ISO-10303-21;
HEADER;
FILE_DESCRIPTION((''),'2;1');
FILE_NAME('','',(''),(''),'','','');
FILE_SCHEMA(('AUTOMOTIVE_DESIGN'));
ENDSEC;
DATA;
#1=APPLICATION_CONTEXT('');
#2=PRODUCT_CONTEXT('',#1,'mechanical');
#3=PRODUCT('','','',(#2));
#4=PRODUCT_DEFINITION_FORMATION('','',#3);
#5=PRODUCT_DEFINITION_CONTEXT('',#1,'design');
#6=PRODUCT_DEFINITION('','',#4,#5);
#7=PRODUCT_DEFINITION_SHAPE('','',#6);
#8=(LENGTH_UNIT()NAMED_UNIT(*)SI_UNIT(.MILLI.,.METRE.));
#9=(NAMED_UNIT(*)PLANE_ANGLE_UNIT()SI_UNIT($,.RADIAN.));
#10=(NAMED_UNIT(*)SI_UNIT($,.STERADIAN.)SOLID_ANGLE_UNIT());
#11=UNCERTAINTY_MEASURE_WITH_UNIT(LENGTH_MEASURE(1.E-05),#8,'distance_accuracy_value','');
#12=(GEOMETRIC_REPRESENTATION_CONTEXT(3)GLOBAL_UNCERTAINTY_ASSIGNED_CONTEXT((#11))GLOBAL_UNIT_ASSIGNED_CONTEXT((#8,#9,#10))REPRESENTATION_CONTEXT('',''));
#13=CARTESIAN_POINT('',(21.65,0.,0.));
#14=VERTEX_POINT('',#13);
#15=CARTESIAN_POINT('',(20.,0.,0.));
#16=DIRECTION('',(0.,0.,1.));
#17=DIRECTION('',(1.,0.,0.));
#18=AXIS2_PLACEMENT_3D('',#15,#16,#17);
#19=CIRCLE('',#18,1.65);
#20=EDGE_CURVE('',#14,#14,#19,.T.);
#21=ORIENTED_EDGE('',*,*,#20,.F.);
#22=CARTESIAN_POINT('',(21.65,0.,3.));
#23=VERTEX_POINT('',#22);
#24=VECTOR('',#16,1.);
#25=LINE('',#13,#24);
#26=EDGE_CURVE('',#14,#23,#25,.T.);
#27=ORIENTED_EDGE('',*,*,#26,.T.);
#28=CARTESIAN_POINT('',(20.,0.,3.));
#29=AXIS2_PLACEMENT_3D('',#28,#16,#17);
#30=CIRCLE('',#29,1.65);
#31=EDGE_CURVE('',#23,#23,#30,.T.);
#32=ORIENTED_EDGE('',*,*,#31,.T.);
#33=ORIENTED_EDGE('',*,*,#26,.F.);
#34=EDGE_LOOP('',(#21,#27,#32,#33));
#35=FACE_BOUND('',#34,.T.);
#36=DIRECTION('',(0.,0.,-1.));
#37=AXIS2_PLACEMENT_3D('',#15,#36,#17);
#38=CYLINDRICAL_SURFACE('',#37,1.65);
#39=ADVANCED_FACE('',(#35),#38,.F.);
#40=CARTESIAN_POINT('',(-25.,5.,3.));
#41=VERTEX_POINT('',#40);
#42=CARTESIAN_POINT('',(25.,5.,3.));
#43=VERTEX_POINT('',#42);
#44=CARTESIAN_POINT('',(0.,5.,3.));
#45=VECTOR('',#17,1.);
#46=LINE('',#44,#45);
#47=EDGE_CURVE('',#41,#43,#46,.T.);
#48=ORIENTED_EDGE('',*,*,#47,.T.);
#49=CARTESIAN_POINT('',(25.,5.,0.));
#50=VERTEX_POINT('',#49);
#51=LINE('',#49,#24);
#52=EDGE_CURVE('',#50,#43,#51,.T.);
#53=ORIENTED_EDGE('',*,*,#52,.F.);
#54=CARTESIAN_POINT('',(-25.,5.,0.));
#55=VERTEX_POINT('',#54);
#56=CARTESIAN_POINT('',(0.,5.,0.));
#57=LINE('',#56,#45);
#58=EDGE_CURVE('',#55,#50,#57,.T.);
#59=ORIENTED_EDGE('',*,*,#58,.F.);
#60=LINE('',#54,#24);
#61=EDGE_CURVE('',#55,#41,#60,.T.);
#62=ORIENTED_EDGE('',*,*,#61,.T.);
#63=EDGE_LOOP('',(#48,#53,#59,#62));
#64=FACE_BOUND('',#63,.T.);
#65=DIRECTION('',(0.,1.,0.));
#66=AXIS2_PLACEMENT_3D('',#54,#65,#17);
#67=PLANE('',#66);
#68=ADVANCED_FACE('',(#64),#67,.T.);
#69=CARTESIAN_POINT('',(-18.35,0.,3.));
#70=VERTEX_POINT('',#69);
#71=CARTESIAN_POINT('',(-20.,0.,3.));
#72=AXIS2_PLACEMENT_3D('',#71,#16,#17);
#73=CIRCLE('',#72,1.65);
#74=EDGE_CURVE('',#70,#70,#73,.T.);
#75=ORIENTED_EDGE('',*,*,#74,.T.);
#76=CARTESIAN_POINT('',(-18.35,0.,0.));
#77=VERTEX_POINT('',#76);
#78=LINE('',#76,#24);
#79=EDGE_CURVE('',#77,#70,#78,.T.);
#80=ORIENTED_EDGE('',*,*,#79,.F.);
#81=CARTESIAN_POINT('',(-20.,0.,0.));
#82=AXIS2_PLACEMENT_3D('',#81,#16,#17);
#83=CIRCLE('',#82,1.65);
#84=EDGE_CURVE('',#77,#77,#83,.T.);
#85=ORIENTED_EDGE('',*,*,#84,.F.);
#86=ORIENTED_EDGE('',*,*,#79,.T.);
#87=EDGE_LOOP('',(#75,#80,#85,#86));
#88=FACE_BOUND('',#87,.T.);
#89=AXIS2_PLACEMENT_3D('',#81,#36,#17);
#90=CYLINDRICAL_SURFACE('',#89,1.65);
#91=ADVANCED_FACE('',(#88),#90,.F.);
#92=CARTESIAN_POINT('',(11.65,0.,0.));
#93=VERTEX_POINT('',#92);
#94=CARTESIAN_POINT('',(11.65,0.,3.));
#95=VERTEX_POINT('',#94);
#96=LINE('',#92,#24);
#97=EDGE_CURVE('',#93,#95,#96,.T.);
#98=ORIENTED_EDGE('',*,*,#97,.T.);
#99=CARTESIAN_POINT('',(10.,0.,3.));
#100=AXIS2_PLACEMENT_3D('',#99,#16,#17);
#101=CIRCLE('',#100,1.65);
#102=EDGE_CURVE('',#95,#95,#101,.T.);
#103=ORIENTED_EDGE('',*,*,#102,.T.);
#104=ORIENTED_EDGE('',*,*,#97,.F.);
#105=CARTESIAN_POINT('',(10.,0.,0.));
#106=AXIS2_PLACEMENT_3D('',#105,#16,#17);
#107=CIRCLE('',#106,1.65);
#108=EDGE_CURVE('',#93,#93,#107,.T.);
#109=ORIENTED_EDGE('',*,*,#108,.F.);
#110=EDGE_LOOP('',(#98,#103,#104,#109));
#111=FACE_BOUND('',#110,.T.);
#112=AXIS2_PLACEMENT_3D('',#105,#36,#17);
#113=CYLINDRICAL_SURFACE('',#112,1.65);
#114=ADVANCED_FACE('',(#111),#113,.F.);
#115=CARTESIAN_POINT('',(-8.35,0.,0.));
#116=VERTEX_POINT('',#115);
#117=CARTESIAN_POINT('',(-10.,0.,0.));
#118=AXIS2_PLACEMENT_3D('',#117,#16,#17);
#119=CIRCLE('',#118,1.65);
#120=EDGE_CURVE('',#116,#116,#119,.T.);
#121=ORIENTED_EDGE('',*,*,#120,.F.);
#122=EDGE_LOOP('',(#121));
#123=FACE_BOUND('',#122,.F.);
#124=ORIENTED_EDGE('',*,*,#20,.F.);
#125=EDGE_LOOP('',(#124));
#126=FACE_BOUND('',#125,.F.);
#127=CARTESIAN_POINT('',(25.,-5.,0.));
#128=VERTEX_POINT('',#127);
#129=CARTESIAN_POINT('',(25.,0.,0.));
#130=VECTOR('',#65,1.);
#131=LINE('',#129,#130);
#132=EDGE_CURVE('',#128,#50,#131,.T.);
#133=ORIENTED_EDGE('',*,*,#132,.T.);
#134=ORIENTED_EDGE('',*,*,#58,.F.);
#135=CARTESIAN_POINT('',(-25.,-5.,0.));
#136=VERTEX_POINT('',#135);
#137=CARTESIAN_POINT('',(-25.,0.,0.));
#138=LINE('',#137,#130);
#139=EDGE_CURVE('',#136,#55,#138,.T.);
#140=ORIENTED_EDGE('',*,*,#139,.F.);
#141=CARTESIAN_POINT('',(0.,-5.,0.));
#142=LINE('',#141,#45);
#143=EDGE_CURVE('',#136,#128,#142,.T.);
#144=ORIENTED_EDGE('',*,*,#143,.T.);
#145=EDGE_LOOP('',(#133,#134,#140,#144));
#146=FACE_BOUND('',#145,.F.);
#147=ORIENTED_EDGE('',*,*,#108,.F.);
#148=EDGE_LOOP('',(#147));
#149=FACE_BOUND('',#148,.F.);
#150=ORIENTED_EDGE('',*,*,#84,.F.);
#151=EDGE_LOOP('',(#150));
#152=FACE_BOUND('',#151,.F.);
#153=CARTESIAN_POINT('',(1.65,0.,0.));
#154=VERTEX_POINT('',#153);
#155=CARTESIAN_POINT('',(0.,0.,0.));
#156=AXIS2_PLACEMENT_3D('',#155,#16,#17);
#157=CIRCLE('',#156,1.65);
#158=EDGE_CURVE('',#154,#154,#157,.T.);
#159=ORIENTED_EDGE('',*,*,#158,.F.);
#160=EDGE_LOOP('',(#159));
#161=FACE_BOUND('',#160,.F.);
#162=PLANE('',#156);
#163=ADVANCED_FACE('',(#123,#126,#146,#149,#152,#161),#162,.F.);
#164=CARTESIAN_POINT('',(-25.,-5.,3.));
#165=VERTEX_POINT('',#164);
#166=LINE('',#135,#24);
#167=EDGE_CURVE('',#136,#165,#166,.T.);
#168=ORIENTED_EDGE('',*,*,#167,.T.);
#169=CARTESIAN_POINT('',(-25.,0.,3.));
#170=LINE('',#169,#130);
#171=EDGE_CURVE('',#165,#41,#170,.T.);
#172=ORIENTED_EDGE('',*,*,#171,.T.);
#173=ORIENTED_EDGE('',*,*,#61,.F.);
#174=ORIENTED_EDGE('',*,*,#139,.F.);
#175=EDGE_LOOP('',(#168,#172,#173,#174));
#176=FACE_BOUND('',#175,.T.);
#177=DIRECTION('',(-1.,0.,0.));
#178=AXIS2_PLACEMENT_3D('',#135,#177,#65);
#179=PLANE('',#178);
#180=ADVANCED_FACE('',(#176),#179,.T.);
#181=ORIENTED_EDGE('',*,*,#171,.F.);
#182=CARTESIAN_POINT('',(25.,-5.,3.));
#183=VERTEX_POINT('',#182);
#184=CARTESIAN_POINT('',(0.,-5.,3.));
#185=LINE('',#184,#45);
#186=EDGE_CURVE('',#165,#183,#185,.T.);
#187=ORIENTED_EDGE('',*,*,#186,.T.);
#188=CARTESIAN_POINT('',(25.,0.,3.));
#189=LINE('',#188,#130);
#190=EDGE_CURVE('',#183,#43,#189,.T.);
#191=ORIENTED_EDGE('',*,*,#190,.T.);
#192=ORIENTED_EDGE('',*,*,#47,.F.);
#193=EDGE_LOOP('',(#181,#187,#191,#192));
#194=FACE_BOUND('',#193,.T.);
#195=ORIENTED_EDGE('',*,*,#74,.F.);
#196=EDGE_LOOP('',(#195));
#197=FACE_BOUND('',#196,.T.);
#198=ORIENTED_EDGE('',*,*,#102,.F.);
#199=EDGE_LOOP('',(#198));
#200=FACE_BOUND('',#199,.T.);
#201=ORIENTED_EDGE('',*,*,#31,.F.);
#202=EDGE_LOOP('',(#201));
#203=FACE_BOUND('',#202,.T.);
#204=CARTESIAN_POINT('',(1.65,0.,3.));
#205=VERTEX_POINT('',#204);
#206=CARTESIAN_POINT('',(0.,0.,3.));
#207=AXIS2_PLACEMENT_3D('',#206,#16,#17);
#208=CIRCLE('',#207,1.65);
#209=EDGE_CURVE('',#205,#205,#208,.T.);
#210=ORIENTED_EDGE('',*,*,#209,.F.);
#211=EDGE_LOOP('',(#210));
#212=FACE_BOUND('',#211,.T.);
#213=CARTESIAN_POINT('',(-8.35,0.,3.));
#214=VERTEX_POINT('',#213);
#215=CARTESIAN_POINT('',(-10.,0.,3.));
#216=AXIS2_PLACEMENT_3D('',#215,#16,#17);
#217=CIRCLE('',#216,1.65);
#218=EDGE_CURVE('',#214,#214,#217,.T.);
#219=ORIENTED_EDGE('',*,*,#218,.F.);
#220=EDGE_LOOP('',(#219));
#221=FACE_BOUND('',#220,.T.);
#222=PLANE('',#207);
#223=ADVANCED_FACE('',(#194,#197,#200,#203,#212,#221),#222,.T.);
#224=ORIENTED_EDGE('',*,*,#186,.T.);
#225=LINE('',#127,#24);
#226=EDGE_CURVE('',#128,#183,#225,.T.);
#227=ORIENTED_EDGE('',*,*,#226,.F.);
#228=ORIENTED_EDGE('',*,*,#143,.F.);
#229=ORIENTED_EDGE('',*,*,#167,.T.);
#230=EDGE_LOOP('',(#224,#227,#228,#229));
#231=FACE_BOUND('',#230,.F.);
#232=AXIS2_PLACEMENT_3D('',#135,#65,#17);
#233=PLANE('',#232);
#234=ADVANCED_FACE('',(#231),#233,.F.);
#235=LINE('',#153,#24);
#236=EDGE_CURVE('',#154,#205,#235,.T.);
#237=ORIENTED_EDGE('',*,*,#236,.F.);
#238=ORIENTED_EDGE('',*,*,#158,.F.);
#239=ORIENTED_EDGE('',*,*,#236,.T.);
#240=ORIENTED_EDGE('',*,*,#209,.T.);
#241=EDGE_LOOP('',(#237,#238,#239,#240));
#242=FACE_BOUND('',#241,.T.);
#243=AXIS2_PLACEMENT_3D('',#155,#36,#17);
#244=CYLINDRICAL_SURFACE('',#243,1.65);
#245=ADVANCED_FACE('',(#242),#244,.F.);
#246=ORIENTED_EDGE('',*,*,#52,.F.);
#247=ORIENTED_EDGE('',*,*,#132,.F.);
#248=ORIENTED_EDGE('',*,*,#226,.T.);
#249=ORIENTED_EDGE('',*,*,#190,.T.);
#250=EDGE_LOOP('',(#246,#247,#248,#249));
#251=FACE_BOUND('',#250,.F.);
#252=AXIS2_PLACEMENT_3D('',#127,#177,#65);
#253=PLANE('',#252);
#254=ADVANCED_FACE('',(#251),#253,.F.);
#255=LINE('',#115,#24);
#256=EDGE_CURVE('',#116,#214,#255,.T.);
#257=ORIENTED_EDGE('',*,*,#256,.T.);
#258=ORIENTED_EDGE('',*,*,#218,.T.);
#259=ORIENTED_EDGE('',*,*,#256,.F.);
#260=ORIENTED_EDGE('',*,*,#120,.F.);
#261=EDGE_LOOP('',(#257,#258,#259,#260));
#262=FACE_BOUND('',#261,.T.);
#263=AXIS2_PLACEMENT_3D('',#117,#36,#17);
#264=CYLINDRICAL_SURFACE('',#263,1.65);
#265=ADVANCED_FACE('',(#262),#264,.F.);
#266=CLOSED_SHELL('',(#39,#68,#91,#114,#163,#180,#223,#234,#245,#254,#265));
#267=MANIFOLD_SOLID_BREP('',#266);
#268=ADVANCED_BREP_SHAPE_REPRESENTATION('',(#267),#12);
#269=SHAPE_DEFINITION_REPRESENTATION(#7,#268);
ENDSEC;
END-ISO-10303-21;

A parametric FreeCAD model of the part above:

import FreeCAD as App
import Part
import Sketcher
from FreeCAD import Vector
Q = App.Units.Quantity

doc = App.newDocument("Part")
body = doc.addObject("PartDesign::Body", "Body")

# Sketch on XY plane
sketch1 = doc.addObject("Sketcher::SketchObject", "Sketch")
body.addObject(sketch1)
sketch1.AttachmentSupport = (doc.XY_Plane, [""])
sketch1.MapMode = "FlatFace"
sketch1.addGeometry(Part.LineSegment(Vector(-25, 5, 0), Vector(-25, -5, 0)), False)
sketch1.addGeometry(Part.LineSegment(Vector(-25, -5, 0), Vector(25, -5, 0)), False)
sketch1.addGeometry(Part.LineSegment(Vector(25, -5, 0), Vector(25, 5, 0)), False)
sketch1.addGeometry(Part.LineSegment(Vector(25, 5, 0), Vector(-25, 5, 0)), False)
sketch1.addGeometry(Part.Circle(Vector(-20, 0, 0), Vector(0, 0, 1), 1.65), False)
sketch1.addGeometry(Part.Circle(Vector(-10, 0, 0), Vector(0, 0, 1), 1.65), False)
sketch1.addGeometry(Part.Circle(Vector(0, 0, 0), Vector(0, 0, 1), 1.65), False)
sketch1.addGeometry(Part.Circle(Vector(10, 0, 0), Vector(0, 0, 1), 1.65), False)
sketch1.addGeometry(Part.Circle(Vector(20, 0, 0), Vector(0, 0, 1), 1.65), False)
sketch1.addConstraint(Sketcher.Constraint("Coincident", 0, 2, 1, 1))
sketch1.addConstraint(Sketcher.Constraint("Coincident", 1, 2, 2, 1))
sketch1.addConstraint(Sketcher.Constraint("Coincident", 2, 2, 3, 1))
sketch1.addConstraint(Sketcher.Constraint("Coincident", 3, 2, 0, 1))
sketch1.addConstraint(Sketcher.Constraint("Vertical", 0))
sketch1.addConstraint(Sketcher.Constraint("Horizontal", 1))
sketch1.addConstraint(Sketcher.Constraint("Vertical", 2))
sketch1.addConstraint(Sketcher.Constraint("Horizontal", 3))
sketch1.addConstraint(Sketcher.Constraint("Coincident", 6, 3, -1, 1))
sketch1.addConstraint(Sketcher.Constraint("Equal", 4, 5))
sketch1.addConstraint(Sketcher.Constraint("Equal", 5, 6))
sketch1.addConstraint(Sketcher.Constraint("Equal", 6, 7))
sketch1.addConstraint(Sketcher.Constraint("Equal", 7, 8))
sketch1.addConstraint(Sketcher.Constraint("Symmetric", 5, 3, 7, 3, -1, 1))
sketch1.addConstraint(Sketcher.Constraint("Symmetric", 4, 3, 8, 3, -1, 1))
sketch1.addConstraint(Sketcher.Constraint("Symmetric", 0, 2, 2, 2, -1, 1))
sketch1.addConstraint(Sketcher.Constraint("PointOnObject", 4, 3, -1))
sketch1.addConstraint(Sketcher.Constraint("PointOnObject", 5, 3, -1))
sketch1.addConstraint(Sketcher.Constraint("Diameter", 4, Q("3.3 mm")))
sketch1.addConstraint(Sketcher.Constraint("DistanceX", 1, 1, 1, 2, Q("50 mm")))
sketch1.addConstraint(Sketcher.Constraint("DistanceY", 0, 2, 0, 1, Q("10 mm")))
sketch1.addConstraint(Sketcher.Constraint("DistanceX", 4, 3, -1, 1, Q("20 mm")))
sketch1.addConstraint(Sketcher.Constraint("DistanceX", 5, 3, -1, 1, Q("10 mm")))
pad1 = doc.addObject("PartDesign::Pad", "Pad")
body.addObject(pad1)
pad1.Profile = sketch1
pad1.Length = 3

doc.recompute()
